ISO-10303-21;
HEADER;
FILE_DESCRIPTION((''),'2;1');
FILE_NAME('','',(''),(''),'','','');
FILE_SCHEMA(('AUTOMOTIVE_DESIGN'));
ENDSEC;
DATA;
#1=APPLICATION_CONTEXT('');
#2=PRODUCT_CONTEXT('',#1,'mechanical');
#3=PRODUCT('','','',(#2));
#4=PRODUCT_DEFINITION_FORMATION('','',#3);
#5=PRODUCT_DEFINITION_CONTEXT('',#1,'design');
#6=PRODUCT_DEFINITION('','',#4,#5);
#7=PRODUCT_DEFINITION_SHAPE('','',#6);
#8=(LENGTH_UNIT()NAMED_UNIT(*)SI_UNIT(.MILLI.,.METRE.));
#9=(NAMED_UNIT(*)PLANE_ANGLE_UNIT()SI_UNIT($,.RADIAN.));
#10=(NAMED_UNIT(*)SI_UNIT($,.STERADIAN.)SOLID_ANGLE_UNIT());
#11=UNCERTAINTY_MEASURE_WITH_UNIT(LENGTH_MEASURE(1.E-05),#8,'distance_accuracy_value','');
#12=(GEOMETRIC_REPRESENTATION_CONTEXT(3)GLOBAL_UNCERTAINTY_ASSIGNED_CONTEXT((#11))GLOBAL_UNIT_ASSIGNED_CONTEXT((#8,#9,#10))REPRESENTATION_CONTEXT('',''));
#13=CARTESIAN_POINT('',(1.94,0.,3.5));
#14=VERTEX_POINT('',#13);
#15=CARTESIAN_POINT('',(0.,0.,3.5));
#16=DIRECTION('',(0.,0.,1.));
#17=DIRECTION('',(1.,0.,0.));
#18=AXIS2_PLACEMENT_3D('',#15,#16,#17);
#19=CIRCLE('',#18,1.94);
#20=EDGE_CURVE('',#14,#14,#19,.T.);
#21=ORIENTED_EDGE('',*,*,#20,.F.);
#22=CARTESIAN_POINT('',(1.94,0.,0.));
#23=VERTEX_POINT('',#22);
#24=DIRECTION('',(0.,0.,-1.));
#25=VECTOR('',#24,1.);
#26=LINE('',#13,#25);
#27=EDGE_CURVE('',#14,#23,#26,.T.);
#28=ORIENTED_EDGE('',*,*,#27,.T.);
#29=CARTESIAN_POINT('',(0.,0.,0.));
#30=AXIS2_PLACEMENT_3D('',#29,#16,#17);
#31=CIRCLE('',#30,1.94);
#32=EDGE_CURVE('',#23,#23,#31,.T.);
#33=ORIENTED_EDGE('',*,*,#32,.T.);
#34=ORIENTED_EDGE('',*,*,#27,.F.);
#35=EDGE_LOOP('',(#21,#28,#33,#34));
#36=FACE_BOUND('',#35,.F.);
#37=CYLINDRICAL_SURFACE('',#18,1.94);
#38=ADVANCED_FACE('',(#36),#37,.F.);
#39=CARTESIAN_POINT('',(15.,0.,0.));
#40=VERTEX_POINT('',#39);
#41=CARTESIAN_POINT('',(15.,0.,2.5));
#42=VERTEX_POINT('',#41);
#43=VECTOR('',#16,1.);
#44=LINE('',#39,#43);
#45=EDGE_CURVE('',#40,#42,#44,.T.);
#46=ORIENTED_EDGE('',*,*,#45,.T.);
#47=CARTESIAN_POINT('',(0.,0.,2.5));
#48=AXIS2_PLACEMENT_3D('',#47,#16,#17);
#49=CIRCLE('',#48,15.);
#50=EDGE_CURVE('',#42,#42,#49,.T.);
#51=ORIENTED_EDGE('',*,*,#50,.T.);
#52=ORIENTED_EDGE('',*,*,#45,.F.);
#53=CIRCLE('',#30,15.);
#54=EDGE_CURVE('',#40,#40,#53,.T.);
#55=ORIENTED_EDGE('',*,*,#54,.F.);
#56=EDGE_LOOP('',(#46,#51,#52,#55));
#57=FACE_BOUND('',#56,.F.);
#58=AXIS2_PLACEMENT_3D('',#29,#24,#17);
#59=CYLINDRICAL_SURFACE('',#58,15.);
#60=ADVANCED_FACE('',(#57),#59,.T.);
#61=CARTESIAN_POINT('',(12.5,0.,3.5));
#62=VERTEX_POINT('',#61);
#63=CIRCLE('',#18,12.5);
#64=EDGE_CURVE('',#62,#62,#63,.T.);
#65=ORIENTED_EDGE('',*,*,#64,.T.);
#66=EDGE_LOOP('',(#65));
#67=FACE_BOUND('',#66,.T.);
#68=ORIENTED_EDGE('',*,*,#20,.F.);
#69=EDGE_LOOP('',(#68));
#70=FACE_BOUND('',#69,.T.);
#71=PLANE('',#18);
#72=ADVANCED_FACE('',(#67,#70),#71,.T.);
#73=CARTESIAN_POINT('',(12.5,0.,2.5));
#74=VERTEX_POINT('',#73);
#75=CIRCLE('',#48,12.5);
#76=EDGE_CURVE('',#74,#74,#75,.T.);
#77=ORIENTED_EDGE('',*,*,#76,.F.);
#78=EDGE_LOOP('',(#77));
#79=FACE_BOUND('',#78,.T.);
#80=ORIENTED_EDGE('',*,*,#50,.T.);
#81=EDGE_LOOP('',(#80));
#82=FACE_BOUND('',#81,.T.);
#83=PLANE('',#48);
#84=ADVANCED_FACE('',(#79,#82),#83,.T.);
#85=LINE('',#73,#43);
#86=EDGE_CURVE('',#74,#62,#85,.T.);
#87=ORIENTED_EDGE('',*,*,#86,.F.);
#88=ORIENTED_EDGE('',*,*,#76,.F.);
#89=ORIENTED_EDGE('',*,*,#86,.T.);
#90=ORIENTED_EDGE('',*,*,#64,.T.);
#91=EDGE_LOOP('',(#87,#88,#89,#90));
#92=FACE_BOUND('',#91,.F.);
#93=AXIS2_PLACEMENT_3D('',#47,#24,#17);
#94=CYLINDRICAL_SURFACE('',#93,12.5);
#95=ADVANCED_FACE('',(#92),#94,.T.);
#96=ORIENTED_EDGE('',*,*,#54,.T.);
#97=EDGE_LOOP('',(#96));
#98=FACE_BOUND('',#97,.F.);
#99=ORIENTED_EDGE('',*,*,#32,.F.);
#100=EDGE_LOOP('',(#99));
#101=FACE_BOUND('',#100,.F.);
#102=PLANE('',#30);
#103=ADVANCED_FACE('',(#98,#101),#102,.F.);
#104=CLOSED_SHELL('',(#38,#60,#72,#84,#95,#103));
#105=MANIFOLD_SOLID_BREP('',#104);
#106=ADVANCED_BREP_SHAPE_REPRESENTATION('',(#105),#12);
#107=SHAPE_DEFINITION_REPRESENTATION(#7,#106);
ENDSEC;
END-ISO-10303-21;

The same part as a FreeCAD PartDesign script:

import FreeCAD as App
import Part
import Sketcher
from FreeCAD import Vector
Q = App.Units.Quantity

doc = App.newDocument("Part")
body = doc.addObject("PartDesign::Body", "Body")

sketch1 = body.newObject("Sketcher::SketchObject", "Sketch")
sketch1.AttachmentSupport = (doc.getObject("XY_Plane"), [""])
sketch1.MapMode = "FlatFace"
sketch1.addGeometry(Part.Circle(Vector(0, 0, 0), Vector(0, 0, 1), 15), False)
sketch1.addConstraint(Sketcher.Constraint("Coincident", 0, 3, -1, 1))
sketch1.addConstraint(Sketcher.Constraint("Diameter", 0, Q("30 mm")))
pad1 = body.newObject("PartDesign::Pad", "Pad")
pad1.Profile = sketch1
pad1.Length = 2.5

sketch2 = body.newObject("Sketcher::SketchObject", "Sketch001")
sketch2.AttachmentSupport = (doc.getObject("XY_Plane"), [""])
sketch2.MapMode = "FlatFace"
sketch2.AttachmentOffset = App.Placement(Vector(0, 0, 2.5), App.Rotation())
sketch2.addGeometry(Part.Circle(Vector(0, 0, 0), Vector(0, 0, 1), 12), False)
sketch2.addConstraint(Sketcher.Constraint("Coincident", 0, 3, -1, 1))
sketch2.addConstraint(Sketcher.Constraint("Diameter", 0, Q("25 mm")))
pad2 = body.newObject("PartDesign::Pad", "Pad001")
pad2.Profile = sketch2
pad2.Length = 1

sketch3 = body.newObject("Sketcher::SketchObject", "Sketch002")
sketch3.AttachmentSupport = (doc.getObject("XY_Plane"), [""])
sketch3.MapMode = "FlatFace"
sketch3.AttachmentOffset = App.Placement(Vector(0, 0, 3.5), App.Rotation())
sketch3.addGeometry(Part.Circle(Vector(0, 0, 0), Vector(0, 0, 1), 1.9), False)
sketch3.addConstraint(Sketcher.Constraint("Coincident", 0, 3, -1, 1))
sketch3.addConstraint(Sketcher.Constraint("Diameter", 0, Q("3.88 mm")))
pocket1 = body.newObject("PartDesign::Pocket", "Pocket")
pocket1.Profile = sketch3
pocket1.Type = "ThroughAll"

doc.recompute()
